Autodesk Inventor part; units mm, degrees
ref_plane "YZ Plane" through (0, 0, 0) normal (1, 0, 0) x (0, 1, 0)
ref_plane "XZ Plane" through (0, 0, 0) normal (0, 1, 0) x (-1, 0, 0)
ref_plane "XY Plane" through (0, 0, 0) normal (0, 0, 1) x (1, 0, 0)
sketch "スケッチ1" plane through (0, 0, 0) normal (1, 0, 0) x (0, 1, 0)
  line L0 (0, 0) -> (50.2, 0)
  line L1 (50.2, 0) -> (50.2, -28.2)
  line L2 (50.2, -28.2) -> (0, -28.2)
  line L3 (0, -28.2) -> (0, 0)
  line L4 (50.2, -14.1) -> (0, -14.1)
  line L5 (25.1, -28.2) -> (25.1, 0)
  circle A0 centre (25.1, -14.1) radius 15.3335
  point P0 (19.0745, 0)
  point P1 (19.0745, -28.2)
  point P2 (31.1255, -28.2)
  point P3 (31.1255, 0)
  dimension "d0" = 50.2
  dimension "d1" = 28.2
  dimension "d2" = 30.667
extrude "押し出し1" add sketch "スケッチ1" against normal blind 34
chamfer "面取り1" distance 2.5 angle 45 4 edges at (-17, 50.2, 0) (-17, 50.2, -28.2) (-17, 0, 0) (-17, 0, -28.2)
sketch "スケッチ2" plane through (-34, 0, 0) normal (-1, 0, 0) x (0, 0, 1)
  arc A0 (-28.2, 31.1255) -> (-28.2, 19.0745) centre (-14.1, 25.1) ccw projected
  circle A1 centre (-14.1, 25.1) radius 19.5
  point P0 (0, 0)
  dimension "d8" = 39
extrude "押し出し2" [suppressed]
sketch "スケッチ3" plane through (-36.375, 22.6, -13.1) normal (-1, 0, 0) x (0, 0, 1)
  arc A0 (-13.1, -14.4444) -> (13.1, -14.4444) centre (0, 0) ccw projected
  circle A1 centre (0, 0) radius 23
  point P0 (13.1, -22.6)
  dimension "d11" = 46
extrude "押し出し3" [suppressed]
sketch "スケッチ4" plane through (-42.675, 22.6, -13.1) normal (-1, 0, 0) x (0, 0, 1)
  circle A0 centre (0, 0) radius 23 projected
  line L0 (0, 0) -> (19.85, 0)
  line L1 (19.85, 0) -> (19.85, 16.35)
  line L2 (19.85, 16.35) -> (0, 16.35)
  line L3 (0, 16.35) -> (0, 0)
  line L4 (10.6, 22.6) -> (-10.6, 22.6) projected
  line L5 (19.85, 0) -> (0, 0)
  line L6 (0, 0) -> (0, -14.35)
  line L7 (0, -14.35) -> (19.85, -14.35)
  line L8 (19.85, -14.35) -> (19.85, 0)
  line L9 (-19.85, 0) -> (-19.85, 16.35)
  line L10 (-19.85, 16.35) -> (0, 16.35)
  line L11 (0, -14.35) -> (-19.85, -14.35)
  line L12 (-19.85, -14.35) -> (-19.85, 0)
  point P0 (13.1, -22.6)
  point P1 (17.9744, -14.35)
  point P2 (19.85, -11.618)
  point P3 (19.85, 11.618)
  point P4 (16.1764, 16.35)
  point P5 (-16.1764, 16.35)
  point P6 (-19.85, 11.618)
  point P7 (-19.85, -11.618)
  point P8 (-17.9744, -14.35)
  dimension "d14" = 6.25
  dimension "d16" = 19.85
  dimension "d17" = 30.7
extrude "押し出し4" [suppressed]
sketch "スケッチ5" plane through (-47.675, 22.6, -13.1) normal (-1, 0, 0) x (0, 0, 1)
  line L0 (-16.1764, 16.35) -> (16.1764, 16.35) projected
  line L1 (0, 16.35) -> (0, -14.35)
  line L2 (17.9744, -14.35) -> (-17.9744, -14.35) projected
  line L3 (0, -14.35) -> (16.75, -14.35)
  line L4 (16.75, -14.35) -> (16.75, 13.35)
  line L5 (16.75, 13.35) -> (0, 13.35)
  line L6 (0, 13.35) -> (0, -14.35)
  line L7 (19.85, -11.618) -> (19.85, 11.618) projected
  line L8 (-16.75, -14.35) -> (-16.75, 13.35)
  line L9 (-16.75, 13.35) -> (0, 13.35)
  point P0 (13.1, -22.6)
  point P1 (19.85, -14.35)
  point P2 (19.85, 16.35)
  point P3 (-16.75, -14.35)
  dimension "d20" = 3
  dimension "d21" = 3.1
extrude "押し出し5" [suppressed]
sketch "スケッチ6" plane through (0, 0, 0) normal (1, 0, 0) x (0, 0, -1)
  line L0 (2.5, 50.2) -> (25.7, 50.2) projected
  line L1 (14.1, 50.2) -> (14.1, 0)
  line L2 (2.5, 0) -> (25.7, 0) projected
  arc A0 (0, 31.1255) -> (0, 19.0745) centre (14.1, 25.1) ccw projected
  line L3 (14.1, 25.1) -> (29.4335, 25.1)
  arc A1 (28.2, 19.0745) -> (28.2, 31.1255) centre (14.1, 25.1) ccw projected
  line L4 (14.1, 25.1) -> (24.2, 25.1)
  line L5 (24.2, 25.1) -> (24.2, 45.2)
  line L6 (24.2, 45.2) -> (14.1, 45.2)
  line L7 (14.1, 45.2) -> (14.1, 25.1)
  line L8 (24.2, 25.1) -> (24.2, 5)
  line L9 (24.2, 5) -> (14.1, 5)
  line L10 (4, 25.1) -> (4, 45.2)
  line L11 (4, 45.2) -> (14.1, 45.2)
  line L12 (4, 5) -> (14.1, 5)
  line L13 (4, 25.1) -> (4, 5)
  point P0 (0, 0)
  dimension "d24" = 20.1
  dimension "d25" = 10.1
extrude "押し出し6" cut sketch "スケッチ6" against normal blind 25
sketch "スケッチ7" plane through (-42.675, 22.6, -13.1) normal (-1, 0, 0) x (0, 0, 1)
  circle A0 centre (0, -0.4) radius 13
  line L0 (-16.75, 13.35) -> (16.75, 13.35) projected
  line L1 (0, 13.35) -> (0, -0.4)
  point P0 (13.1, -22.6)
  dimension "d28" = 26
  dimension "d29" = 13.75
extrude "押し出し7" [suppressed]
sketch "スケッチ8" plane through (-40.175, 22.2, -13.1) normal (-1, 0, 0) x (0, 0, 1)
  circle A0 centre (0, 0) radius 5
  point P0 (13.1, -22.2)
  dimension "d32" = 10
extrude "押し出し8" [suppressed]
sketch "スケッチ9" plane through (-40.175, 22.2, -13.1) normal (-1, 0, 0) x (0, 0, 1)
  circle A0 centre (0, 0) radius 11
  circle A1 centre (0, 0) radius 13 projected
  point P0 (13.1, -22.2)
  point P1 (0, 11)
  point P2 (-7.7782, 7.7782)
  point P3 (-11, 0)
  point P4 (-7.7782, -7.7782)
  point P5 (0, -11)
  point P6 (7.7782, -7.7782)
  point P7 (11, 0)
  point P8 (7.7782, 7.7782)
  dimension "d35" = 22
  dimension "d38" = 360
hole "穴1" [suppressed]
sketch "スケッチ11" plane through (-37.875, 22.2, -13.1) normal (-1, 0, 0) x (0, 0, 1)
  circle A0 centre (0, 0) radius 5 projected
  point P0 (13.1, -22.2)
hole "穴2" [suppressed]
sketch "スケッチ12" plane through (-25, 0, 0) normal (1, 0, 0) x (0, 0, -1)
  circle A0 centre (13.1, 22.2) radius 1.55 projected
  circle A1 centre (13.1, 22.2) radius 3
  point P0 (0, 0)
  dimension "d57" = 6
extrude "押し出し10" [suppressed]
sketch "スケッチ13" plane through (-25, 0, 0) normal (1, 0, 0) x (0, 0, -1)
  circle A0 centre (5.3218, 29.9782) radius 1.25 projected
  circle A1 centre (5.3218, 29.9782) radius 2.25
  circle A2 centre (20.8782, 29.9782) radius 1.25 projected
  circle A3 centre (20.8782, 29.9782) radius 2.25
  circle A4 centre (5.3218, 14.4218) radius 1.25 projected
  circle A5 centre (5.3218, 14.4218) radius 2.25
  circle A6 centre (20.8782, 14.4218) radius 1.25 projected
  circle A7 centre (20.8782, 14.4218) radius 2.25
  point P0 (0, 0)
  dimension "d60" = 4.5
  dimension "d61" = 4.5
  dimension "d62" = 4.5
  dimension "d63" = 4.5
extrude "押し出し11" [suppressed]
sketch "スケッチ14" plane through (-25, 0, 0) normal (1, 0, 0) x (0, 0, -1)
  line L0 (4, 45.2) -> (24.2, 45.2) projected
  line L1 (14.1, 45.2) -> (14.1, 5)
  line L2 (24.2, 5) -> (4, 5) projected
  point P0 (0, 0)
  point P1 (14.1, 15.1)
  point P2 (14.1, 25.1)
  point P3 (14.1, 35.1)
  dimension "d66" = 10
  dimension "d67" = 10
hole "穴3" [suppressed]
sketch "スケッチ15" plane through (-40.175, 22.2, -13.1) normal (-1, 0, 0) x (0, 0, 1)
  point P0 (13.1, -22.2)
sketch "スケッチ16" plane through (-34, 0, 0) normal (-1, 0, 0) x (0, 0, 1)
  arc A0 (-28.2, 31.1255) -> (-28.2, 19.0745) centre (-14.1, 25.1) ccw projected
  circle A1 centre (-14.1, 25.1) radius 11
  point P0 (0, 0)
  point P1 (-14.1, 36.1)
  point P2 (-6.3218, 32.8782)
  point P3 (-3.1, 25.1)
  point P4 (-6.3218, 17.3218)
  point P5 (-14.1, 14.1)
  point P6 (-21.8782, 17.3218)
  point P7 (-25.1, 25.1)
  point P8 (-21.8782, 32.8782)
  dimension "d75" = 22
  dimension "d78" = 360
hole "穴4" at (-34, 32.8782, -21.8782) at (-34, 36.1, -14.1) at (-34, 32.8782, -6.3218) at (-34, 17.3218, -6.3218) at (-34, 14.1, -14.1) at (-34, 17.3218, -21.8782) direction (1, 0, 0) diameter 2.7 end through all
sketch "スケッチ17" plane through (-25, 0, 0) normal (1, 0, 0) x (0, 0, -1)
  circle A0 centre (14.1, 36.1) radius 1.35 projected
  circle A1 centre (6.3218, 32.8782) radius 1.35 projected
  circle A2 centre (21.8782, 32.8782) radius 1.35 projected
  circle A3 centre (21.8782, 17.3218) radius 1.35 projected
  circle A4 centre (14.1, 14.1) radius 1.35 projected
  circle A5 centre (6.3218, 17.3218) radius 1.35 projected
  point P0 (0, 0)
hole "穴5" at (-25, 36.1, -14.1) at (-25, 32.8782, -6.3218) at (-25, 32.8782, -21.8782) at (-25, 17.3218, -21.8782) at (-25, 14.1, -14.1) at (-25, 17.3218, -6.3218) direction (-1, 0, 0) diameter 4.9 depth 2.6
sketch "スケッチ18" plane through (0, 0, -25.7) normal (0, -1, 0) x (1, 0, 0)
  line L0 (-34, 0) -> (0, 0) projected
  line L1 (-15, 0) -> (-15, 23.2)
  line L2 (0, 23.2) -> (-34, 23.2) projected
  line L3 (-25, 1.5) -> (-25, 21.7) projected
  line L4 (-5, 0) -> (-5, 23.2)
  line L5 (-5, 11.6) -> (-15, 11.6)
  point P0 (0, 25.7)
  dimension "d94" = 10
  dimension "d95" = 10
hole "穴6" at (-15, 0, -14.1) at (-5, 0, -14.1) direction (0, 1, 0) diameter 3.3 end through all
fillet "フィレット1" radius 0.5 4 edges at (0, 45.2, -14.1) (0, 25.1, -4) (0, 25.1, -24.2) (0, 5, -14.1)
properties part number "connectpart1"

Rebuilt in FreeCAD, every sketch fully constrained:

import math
import FreeCAD as App
import Part
import Sketcher
from FreeCAD import Vector
Q = App.Units.Quantity


def edges_at(feature, points):
    """Names of the edges that pass closest to the given points."""
    edges = feature.Shape.Edges
    near = lambda p: min(range(len(edges)), key=lambda i: edges[i].distToShape(Part.Vertex(*p))[0])
    return sorted({f"Edge{near(p) + 1}" for p in points})

doc = App.newDocument("Part")
params = doc.addObject("Spreadsheet::Sheet", "Params")
for row, (alias, value) in enumerate([
    ("sketch1_height", "28.2 mm"),
    ("pad1_length", "34 mm"),
    ("chamfer_size", "2.5 mm"),
    ("sketch2_width", "40.2 mm"),
    ("sketch2_height", "20.2 mm"),
    ("pocket1_length", "25 mm"),
    ("sketch3_diameter", "2.7 mm"),
    ("hole_diameter", "2.7 mm"),
    ("sketch4_diameter", "4.9 mm"),
    ("hole2_diameter", "4.9 mm"),
    ("hole2_depth", "2.6 mm"),
    ("sketch5_diameter", "3.3 mm"),
    ("hole3_diameter", "3.3 mm"),
    ("fillet_radius", "0.5 mm"),
], start=1):
    params.set(f"A{row}", alias)
    params.set(f"B{row}", "=" + value)
    params.setAlias(f"B{row}", alias)

body = doc.addObject("PartDesign::Body", "Body")

# Sketch on YZ plane
sketch1 = doc.addObject("Sketcher::SketchObject", "Sketch")
body.addObject(sketch1)
sketch1.AttachmentSupport = (doc.YZ_Plane, [""])
sketch1.MapMode = "FlatFace"
sketch1.addGeometry([
    Part.LineSegment(Vector(19, 0, 0), Vector(0, 0, 0)),  # 0
    Part.LineSegment(Vector(0, 0, 0), Vector(0, -28, 0)),  # 1
    Part.LineSegment(Vector(0, -28, 0), Vector(19, -28, 0)),  # 2
    Part.ArcOfCircle(Part.Circle(Vector(25, -14, 0), Vector(0, 0, 1), 15), math.radians(-113), math.radians(-67)),  # 3
    Part.LineSegment(Vector(31, -28, 0), Vector(50, -28, 0)),  # 4
    Part.LineSegment(Vector(50, -28, 0), Vector(50, 0, 0)),  # 5
    Part.LineSegment(Vector(50, 0, 0), Vector(31, 0, 0)),  # 6
    Part.ArcOfCircle(Part.Circle(Vector(25, -14, 0), Vector(0, 0, 1), 15), math.radians(67), math.radians(113)),  # 7
], False)
sketch1.addConstraint([
    Sketcher.Constraint("Coincident", 0, 2, 1, 1),
    Sketcher.Constraint("Coincident", 1, 2, 2, 1),
    Sketcher.Constraint("Coincident", 2, 2, 3, 1),
    Sketcher.Constraint("Coincident", 3, 2, 4, 1),
    Sketcher.Constraint("Coincident", 4, 2, 5, 1),
    Sketcher.Constraint("Coincident", 5, 2, 6, 1),
    Sketcher.Constraint("Coincident", 6, 2, 7, 1),
    Sketcher.Constraint("Coincident", 7, 2, 0, 1),
    Sketcher.Constraint("Horizontal", 0),
    Sketcher.Constraint("Vertical", 1),
    Sketcher.Constraint("Horizontal", 2),
    Sketcher.Constraint("Horizontal", 4),
    Sketcher.Constraint("Vertical", 5),
    Sketcher.Constraint("Horizontal", 6),
    Sketcher.Constraint("Coincident", 0, 2, -1, 1),
    Sketcher.Constraint("Coincident", 7, 3, 3, 3),
    Sketcher.Constraint("Equal", 3, 7),
    Sketcher.Constraint("PointOnObject", 5, 2, -1),
    Sketcher.Constraint("Horizontal", 2, 2, 3, 2),
    Sketcher.Constraint("Vertical", 3, 2, 6, 2),
    Sketcher.Constraint("Equal", 2, 4),
    Sketcher.Constraint("DistanceY", 1, 2, 1, 1, Q("28.2 mm")),
    Sketcher.Constraint("DistanceX", -1, 1, 4, 2, Q("50.2 mm")),
    Sketcher.Constraint("Radius", 3, Q("15.3335 mm")),
])
sketch1.setExpression("Constraints[21]", "Params.sketch1_height")
pad1 = doc.addObject("PartDesign::Pad", "Pad")
body.addObject(pad1)
pad1.Profile = sketch1
pad1.setExpression("Length", "Params.pad1_length")
pad1.Reversed = True
doc.recompute()

chamfer = doc.addObject("PartDesign::Chamfer", "Chamfer")
body.addObject(chamfer)
chamfer.Base = (pad1, edges_at(pad1, [
    (-17, 50.2, 0),
    (-17, 50.2, -28.2),
    (-17, 0, 0),
    (-17, 0, -28.2),
]))
chamfer.setExpression("Size", "Params.chamfer_size")

# Sketch on YZ plane
sketch2 = doc.addObject("Sketcher::SketchObject", "Sketch001")
body.addObject(sketch2)
sketch2.AttachmentSupport = (doc.YZ_Plane, [""])
sketch2.MapMode = "FlatFace"
sketch2.addGeometry([
    Part.LineSegment(Vector(45, -24, 0), Vector(45, -4, 0)),
    Part.LineSegment(Vector(45, -4, 0), Vector(5, -4, 0)),
    Part.LineSegment(Vector(5, -4, 0), Vector(5, -24, 0)),
    Part.LineSegment(Vector(5, -24, 0), Vector(45, -24, 0)),
], False)
sketch2.addConstraint([
    Sketcher.Constraint("Coincident", 0, 2, 1, 1),
    Sketcher.Constraint("Coincident", 1, 2, 2, 1),
    Sketcher.Constraint("Coincident", 2, 2, 3, 1),
    Sketcher.Constraint("Coincident", 3, 2, 0, 1),
    Sketcher.Constraint("Vertical", 0),
    Sketcher.Constraint("Horizontal", 1),
    Sketcher.Constraint("Vertical", 2),
    Sketcher.Constraint("Horizontal", 3),
    Sketcher.Constraint("DistanceX", 1, 2, 1, 1, Q("40.2 mm")),
    Sketcher.Constraint("DistanceY", 0, 1, 0, 2, Q("20.2 mm")),
    Sketcher.Constraint("DistanceY", 0, 2, -1, 1, Q("4 mm")),
    Sketcher.Constraint("DistanceX", -1, 1, 1, 2, Q("5 mm")),
])
sketch2.setExpression("Constraints[8]", "Params.sketch2_width")
sketch2.setExpression("Constraints[9]", "Params.sketch2_height")
pocket1 = doc.addObject("PartDesign::Pocket", "Pocket")
body.addObject(pocket1)
pocket1.Profile = sketch2
pocket1.setExpression("Length", "Params.pocket1_length")

# Sketch on YZ plane
sketch3 = doc.addObject("Sketcher::SketchObject", "Sketch002")
body.addObject(sketch3)
sketch3.AttachmentSupport = (doc.YZ_Plane, [""])
sketch3.MapMode = "FlatFace"
sketch3.AttachmentOffset = App.Placement(Vector(0, 0, -34), App.Rotation())
sketch3.addGeometry([
    Part.Circle(Vector(32.9, -21.9, 0), Vector(0, 0, 1), 1.4),  # 0
    Part.Circle(Vector(36.1, -14.1, 0), Vector(0, 0, 1), 1.4),  # 1
    Part.Circle(Vector(32.9, -6.3, 0), Vector(0, 0, 1), 1.4),  # 2
    Part.Circle(Vector(17.3, -6.3, 0), Vector(0, 0, 1), 1.4),  # 3
    Part.Circle(Vector(14.1, -14.1, 0), Vector(0, 0, 1), 1.4),  # 4
    Part.Circle(Vector(17.3, -21.9, 0), Vector(0, 0, 1), 1.4),  # 5
], False)
sketch3.addConstraint([
    Sketcher.Constraint("Equal", 0, 1),
    Sketcher.Constraint("Equal", 1, 2),
    Sketcher.Constraint("Equal", 2, 3),
    Sketcher.Constraint("Equal", 3, 4),
    Sketcher.Constraint("Equal", 4, 5),
    Sketcher.Constraint("Horizontal", 2, 3, 3, 3),
    Sketcher.Constraint("Horizontal", 1, 3, 4, 3),
    Sketcher.Constraint("Horizontal", 0, 3, 5, 3),
    Sketcher.Constraint("Vertical", 0, 3, 2, 3),
    Sketcher.Constraint("Vertical", 3, 3, 5, 3),
    Sketcher.Constraint("Diameter", 0, Q("2.7 mm")),
    Sketcher.Constraint("DistanceX", 4, 3, 1, 3, Q("22 mm")),
    Sketcher.Constraint("DistanceX", -1, 1, 1, 3, Q("36.1 mm")),
    Sketcher.Constraint("DistanceY", 1, 3, -1, 1, Q("14.1 mm")),
    Sketcher.Constraint("DistanceX", -1, 1, 0, 3, Q("32.8782 mm")),
    Sketcher.Constraint("DistanceY", 0, 3, -1, 1, Q("21.8782 mm")),
    Sketcher.Constraint("DistanceY", 2, 3, -1, 1, Q("6.3218 mm")),
    Sketcher.Constraint("DistanceX", -1, 1, 3, 3, Q("17.3218 mm")),
])
sketch3.setExpression("Constraints[10]", "Params.sketch3_diameter")
doc.recompute()
hole = doc.addObject("PartDesign::Hole", "Hole")
body.addObject(hole)
hole.Profile = sketch3
hole.ThreadType = "None"
hole.setExpression("Diameter", "Params.hole_diameter")
hole.DepthType = "ThroughAll"
hole.Reversed = True

# Sketch on YZ plane
sketch4 = doc.addObject("Sketcher::SketchObject", "Sketch003")
body.addObject(sketch4)
sketch4.AttachmentSupport = (doc.YZ_Plane, [""])
sketch4.MapMode = "FlatFace"
sketch4.AttachmentOffset = App.Placement(Vector(0, 0, -25), App.Rotation())
sketch4.addGeometry([
    Part.Circle(Vector(36.1, -14.1, 0), Vector(0, 0, 1), 2.5),  # 0
    Part.Circle(Vector(32.9, -6.3, 0), Vector(0, 0, 1), 2.5),  # 1
    Part.Circle(Vector(32.9, -21.9, 0), Vector(0, 0, 1), 2.5),  # 2
    Part.Circle(Vector(17.3, -21.9, 0), Vector(0, 0, 1), 2.5),  # 3
    Part.Circle(Vector(14.1, -14.1, 0), Vector(0, 0, 1), 2.5),  # 4
    Part.Circle(Vector(17.3, -6.3, 0), Vector(0, 0, 1), 2.5),  # 5
], False)
sketch4.addConstraint([
    Sketcher.Constraint("Equal", 0, 1),
    Sketcher.Constraint("Equal", 1, 2),
    Sketcher.Constraint("Equal", 2, 3),
    Sketcher.Constraint("Equal", 3, 4),
    Sketcher.Constraint("Equal", 4, 5),
    Sketcher.Constraint("Horizontal", 2, 3, 3, 3),
    Sketcher.Constraint("Horizontal", 0, 3, 4, 3),
    Sketcher.Constraint("Horizontal", 1, 3, 5, 3),
    Sketcher.Constraint("Vertical", 1, 3, 2, 3),
    Sketcher.Constraint("Vertical", 3, 3, 5, 3),
    Sketcher.Constraint("Diameter", 0, Q("4.9 mm")),
    Sketcher.Constraint("DistanceX", 4, 3, 0, 3, Q("22 mm")),
    Sketcher.Constraint("DistanceX", -1, 1, 0, 3, Q("36.1 mm")),
    Sketcher.Constraint("DistanceY", 0, 3, -1, 1, Q("14.1 mm")),
    Sketcher.Constraint("DistanceX", -1, 1, 1, 3, Q("32.8782 mm")),
    Sketcher.Constraint("DistanceY", 1, 3, -1, 1, Q("6.3218 mm")),
    Sketcher.Constraint("DistanceY", 2, 3, -1, 1, Q("21.8782 mm")),
    Sketcher.Constraint("DistanceX", -1, 1, 3, 3, Q("17.3218 mm")),
])
sketch4.setExpression("Constraints[10]", "Params.sketch4_diameter")
doc.recompute()
hole2 = doc.addObject("PartDesign::Hole", "Hole001")
body.addObject(hole2)
hole2.Profile = sketch4
hole2.ThreadType = "None"
hole2.setExpression("Diameter", "Params.hole2_diameter")
hole2.DepthType = "Dimension"
hole2.setExpression("Depth", "Params.hole2_depth")
hole2.DrillPoint = "Flat"

# Sketch on XZ plane
sketch5 = doc.addObject("Sketcher::SketchObject", "Sketch004")
body.addObject(sketch5)
sketch5.AttachmentSupport = (doc.XZ_Plane, [""])
sketch5.MapMode = "FlatFace"
sketch5.addGeometry([
    Part.Circle(Vector(-15, -14.1, 0), Vector(0, 0, 1), 1.6),
    Part.Circle(Vector(-5, -14.1, 0), Vector(0, 0, 1), 1.6),
], False)
sketch5.addConstraint([
    Sketcher.Constraint("Equal", 0, 1),
    Sketcher.Constraint("Horizontal", 0, 3, 1, 3),
    Sketcher.Constraint("Diameter", 0, Q("3.3 mm")),
    Sketcher.Constraint("DistanceX", 0, 3, -1, 1, Q("15 mm")),
    Sketcher.Constraint("DistanceX", 1, 3, -1, 1, Q("5 mm")),
    Sketcher.Constraint("DistanceY", 0, 3, -1, 1, Q("14.1 mm")),
])
sketch5.setExpression("Constraints[2]", "Params.sketch5_diameter")
doc.recompute()
hole3 = doc.addObject("PartDesign::Hole", "Hole002")
body.addObject(hole3)
hole3.Profile = sketch5
hole3.ThreadType = "None"
hole3.setExpression("Diameter", "Params.hole3_diameter")
hole3.DepthType = "ThroughAll"
doc.recompute()

fillet = doc.addObject("PartDesign::Fillet", "Fillet")
body.addObject(fillet)
fillet.Base = (hole3, edges_at(hole3, [
    (0, 45.2, -14.1),
    (0, 25.1, -4),
    (0, 25.1, -24.2),
    (0, 5, -14.1),
]))
fillet.setExpression("Radius", "Params.fillet_radius")

doc.recompute()
